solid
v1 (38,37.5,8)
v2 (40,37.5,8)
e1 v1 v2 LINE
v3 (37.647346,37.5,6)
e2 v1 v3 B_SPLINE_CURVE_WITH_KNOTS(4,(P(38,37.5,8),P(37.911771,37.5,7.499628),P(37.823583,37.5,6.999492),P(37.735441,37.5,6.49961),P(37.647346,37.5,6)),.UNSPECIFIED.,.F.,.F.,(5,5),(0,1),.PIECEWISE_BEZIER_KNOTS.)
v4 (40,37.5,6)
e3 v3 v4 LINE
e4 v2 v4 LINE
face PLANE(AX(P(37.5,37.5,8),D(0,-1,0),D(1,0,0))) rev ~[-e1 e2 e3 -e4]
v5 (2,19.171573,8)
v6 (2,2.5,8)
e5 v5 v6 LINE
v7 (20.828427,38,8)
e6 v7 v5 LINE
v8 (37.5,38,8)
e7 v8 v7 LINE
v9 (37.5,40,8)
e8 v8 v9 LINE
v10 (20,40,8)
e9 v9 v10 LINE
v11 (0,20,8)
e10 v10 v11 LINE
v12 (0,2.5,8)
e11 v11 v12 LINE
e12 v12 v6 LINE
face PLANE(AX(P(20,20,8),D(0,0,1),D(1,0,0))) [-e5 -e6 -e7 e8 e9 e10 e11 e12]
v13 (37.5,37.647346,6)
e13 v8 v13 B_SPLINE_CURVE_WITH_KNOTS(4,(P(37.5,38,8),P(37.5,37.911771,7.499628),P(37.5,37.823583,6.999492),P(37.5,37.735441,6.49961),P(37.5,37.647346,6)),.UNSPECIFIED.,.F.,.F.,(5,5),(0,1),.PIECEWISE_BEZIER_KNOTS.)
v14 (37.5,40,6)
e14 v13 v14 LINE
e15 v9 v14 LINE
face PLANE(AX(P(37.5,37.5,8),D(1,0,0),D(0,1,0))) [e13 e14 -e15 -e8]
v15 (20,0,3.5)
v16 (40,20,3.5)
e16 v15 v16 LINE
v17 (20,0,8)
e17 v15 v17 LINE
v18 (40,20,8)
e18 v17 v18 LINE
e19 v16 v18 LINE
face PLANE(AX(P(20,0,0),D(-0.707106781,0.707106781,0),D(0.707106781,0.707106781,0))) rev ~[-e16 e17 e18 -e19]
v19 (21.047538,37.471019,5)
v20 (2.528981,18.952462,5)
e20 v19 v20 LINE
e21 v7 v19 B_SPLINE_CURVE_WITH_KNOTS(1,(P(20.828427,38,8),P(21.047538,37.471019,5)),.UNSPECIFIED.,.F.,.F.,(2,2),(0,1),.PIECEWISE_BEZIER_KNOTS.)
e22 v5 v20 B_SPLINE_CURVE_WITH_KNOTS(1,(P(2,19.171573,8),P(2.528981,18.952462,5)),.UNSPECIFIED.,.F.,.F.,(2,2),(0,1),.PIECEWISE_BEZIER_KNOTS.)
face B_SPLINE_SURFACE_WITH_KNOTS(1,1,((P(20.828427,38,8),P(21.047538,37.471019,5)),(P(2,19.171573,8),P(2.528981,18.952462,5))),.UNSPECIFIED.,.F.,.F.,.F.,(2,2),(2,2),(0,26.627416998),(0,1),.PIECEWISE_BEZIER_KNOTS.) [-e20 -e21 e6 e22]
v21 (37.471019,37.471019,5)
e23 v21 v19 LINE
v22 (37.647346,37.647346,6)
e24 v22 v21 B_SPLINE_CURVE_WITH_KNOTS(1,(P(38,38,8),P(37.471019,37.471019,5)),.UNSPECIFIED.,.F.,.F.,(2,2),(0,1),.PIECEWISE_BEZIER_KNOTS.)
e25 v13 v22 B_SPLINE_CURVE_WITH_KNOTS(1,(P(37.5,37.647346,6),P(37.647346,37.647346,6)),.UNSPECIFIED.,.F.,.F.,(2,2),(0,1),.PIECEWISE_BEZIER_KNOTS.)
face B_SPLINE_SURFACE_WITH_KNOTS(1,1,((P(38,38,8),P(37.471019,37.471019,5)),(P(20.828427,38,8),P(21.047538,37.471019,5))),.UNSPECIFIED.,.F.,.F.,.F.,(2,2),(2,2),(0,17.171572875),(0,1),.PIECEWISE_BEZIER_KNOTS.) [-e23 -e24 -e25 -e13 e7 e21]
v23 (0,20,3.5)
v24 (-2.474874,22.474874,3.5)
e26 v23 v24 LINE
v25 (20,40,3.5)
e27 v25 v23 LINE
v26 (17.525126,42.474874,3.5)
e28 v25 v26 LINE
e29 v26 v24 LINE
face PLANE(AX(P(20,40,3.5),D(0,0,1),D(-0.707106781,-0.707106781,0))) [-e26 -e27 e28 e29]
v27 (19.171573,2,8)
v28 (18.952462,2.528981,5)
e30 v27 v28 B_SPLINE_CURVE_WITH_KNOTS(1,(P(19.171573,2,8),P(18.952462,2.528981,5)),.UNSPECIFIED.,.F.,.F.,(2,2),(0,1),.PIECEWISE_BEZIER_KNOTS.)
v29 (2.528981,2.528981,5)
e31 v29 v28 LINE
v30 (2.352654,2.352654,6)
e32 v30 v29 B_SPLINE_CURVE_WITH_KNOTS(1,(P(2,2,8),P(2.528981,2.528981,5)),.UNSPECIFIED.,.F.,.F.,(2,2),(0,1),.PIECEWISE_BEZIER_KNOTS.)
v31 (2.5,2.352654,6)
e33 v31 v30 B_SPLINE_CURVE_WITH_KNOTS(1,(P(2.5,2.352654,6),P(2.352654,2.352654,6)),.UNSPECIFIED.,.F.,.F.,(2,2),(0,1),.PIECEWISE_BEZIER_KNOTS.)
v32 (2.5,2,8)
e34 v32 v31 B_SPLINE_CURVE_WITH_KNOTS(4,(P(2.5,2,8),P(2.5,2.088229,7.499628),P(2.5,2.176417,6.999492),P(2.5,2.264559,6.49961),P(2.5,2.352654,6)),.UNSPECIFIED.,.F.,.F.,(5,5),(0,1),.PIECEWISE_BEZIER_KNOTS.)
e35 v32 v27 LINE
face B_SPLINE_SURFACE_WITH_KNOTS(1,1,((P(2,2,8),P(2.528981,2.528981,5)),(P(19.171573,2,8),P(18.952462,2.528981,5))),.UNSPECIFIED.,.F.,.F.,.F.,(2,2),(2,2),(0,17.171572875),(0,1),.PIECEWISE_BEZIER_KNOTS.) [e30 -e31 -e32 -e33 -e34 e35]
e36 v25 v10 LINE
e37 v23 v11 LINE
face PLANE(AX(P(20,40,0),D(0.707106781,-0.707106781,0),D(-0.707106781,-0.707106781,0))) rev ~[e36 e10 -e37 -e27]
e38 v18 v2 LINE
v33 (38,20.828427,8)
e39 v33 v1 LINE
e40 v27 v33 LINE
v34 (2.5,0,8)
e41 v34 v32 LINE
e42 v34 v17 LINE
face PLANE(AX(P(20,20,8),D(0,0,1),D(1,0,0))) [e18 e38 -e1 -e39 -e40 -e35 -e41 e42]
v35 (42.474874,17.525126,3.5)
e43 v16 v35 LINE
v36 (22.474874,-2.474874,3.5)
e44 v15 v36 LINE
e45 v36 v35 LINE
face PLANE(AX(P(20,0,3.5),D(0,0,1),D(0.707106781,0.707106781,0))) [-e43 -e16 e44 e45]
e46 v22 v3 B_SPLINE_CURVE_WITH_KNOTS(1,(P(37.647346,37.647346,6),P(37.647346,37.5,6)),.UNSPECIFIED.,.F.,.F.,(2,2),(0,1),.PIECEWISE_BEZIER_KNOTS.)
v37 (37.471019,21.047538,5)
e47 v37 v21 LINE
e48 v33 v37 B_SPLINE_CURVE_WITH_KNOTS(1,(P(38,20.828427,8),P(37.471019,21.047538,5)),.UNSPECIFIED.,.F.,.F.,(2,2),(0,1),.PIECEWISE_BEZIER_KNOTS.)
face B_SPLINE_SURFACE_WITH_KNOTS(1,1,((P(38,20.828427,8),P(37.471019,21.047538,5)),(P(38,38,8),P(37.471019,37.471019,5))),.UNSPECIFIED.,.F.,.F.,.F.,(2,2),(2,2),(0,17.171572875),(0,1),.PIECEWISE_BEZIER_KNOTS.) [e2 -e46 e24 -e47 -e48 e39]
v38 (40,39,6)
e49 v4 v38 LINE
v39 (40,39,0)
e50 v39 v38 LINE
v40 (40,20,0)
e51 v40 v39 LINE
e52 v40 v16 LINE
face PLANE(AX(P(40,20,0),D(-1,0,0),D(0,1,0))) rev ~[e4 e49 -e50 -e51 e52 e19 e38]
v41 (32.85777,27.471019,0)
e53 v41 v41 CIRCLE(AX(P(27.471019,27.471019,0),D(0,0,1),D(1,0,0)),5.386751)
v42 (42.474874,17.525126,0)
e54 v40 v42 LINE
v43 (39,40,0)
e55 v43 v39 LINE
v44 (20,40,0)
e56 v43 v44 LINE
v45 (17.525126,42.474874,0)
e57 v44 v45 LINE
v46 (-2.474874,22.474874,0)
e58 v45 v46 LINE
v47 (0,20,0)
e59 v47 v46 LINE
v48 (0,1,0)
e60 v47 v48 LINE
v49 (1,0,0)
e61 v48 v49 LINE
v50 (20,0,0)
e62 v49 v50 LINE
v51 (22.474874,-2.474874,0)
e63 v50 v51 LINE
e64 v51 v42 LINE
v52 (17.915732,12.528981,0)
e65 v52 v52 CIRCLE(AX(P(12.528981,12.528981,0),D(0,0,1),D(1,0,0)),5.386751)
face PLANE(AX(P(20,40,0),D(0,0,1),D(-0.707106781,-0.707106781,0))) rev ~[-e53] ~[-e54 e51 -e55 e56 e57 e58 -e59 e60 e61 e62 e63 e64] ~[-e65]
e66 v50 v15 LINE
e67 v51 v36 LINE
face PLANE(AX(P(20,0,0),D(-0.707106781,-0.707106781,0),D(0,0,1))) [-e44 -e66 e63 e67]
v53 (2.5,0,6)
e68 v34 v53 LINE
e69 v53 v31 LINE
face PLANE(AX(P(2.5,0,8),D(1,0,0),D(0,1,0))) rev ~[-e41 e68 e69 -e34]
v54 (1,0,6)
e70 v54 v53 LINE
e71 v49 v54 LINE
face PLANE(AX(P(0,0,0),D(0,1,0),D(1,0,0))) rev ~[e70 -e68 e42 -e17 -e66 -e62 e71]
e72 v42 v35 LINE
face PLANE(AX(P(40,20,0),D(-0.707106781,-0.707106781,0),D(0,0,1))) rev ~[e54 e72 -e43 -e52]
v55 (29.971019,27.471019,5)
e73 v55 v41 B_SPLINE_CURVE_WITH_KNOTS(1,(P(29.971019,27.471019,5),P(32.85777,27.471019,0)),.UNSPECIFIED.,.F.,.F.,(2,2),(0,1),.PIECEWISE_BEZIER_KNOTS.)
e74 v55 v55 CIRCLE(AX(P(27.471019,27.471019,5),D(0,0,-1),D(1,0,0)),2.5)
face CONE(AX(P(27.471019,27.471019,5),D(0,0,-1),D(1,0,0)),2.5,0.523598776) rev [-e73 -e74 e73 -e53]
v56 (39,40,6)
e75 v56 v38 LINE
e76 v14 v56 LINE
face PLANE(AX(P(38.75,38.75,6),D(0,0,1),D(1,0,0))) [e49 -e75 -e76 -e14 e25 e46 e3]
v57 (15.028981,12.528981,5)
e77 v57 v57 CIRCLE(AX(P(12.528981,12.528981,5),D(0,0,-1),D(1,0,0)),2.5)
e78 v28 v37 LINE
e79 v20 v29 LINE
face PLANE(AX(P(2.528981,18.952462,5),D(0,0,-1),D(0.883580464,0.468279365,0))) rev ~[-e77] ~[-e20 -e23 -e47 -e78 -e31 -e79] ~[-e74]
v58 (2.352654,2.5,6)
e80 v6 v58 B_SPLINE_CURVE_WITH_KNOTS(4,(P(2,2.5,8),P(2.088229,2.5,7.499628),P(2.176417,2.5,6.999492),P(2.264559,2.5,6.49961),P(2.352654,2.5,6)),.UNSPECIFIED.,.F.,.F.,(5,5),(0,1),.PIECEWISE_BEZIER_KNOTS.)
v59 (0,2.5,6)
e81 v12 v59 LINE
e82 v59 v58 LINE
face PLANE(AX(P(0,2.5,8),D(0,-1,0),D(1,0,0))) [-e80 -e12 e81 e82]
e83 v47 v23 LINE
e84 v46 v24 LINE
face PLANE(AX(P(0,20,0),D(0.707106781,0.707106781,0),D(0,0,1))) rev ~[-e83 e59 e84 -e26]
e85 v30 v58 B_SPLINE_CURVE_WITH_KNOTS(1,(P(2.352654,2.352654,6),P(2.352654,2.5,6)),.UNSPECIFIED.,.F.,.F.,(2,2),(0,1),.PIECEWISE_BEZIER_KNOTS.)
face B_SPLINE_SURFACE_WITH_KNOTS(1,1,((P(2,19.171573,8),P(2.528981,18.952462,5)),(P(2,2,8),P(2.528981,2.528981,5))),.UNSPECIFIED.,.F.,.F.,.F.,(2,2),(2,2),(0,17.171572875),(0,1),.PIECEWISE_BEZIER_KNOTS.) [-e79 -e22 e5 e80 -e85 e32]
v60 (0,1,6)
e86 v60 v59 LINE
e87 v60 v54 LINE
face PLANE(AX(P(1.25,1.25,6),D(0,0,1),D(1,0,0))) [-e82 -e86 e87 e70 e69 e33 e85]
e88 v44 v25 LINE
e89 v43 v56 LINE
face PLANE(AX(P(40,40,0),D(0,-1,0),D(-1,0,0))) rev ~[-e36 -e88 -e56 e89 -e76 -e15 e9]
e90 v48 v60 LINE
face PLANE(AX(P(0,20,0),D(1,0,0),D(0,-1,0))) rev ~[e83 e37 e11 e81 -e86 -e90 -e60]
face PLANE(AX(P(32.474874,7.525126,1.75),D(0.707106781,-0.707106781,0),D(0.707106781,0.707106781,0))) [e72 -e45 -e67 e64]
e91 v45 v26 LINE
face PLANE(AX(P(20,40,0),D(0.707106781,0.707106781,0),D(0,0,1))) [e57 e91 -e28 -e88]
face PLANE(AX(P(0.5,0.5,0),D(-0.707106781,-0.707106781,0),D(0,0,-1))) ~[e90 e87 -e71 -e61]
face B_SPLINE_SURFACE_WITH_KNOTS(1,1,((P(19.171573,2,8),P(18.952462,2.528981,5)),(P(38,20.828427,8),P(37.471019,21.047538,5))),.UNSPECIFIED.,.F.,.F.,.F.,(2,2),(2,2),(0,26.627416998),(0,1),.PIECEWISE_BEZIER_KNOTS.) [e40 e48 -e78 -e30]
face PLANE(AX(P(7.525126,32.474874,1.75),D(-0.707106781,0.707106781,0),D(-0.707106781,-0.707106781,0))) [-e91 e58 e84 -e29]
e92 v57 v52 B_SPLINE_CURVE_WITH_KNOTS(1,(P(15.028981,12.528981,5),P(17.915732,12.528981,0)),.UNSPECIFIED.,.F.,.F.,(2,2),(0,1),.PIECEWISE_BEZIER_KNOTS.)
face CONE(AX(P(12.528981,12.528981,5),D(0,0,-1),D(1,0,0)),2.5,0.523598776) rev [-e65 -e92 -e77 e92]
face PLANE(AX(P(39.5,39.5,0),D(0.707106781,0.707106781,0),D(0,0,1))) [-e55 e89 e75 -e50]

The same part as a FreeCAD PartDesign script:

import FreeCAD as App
import Part
import Sketcher
from FreeCAD import Vector
Q = App.Units.Quantity


def edges_at(feature, points):
    """Names of the edges that pass closest to the given points."""
    edges = feature.Shape.Edges
    near = lambda p: min(range(len(edges)), key=lambda i: edges[i].distToShape(Part.Vertex(*p))[0])
    return sorted({f"Edge{near(p) + 1}" for p in points})


def add_polygon(sketch, points):
    """Adds a closed chain of lines whose ends are joined by coincident constraints."""
    first, n = sketch.GeometryCount, len(points)
    for a, b in zip(points, points[1:] + points[:1]):
        sketch.addGeometry(Part.LineSegment(App.Vector(*a, 0), App.Vector(*b, 0)), False)
    for i in range(n):
        sketch.addConstraint(Sketcher.Constraint("Coincident", first + i, 2, first + (i + 1) % n, 1))

doc = App.newDocument("Part")
body = doc.addObject("PartDesign::Body", "Body")

# Sketch on XY plane
sketch1 = body.newObject("Sketcher::SketchObject", "Sketch")
sketch1.AttachmentSupport = (doc.getObject("XY_Plane"), [""])
sketch1.MapMode = "FlatFace"
add_polygon(sketch1, [(0, 20), (0, 0), (20, 0), (40, 20), (40, 40), (20, 40)])  # lines 0-5
sketch1.addConstraint(Sketcher.Constraint("Vertical", 0))
sketch1.addConstraint(Sketcher.Constraint("Horizontal", 1))
sketch1.addConstraint(Sketcher.Constraint("Vertical", 3))
sketch1.addConstraint(Sketcher.Constraint("Horizontal", 4))
sketch1.addConstraint(Sketcher.Constraint("Coincident", 0, 2, -1, 1))
sketch1.addConstraint(Sketcher.Constraint("Parallel", 2, 5))
sketch1.addConstraint(Sketcher.Constraint("Horizontal", 2, 2, 5, 2))
sketch1.addConstraint(Sketcher.Constraint("Vertical", 1, 2, 4, 2))
sketch1.addConstraint(Sketcher.Constraint("Equal", 1, 4))
sketch1.addConstraint(Sketcher.Constraint("Equal", 4, 0))
sketch1.addConstraint(Sketcher.Constraint("DistanceX", 1, 1, 1, 2, Q("20 mm")))
pad1 = body.newObject("PartDesign::Pad", "Pad")
pad1.Profile = sketch1
pad1.Length = 8

# Sketch on XY plane
sketch2 = body.newObject("Sketcher::SketchObject", "Sketch001")
sketch2.AttachmentSupport = (doc.getObject("XY_Plane"), [""])
sketch2.MapMode = "FlatFace"
sketch2.AttachmentOffset = App.Placement(Vector(0, 0, 8), App.Rotation())
add_polygon(sketch2, [(2, 19.171573), (2, 2), (19.171573, 2), (38, 20.828427), (38, 38), (20.828427, 38)])  # lines 0-5
sketch2.addConstraint(Sketcher.Constraint("Vertical", 0))
sketch2.addConstraint(Sketcher.Constraint("Horizontal", 1))
sketch2.addConstraint(Sketcher.Constraint("Vertical", 3))
sketch2.addConstraint(Sketcher.Constraint("Horizontal", 4))
sketch2.addConstraint(Sketcher.Constraint("Parallel", 2, 5))
sketch2.addConstraint(Sketcher.Constraint("Equal", 1, 4))
sketch2.addConstraint(Sketcher.Constraint("Equal", 4, 0))
sketch2.addConstraint(Sketcher.Constraint("Angle", 2, Q("45 deg")))
sketch2.addConstraint(Sketcher.Constraint("DistanceX", -1, 1, 0, 2, Q("2 mm")))
sketch2.addConstraint(Sketcher.Constraint("DistanceY", -1, 1, 0, 2, Q("2 mm")))
sketch2.addConstraint(Sketcher.Constraint("DistanceX", -1, 1, 2, 2, Q("38 mm")))
sketch2.addConstraint(Sketcher.Constraint("DistanceX", 1, 1, 1, 2, Q("17.171573 mm")))
pocket1 = body.newObject("PartDesign::Pocket", "Pocket")
pocket1.Profile = sketch2
pocket1.Length = 3
pocket1.TaperAngle = -10
doc.recompute()

chamfer = body.newObject("PartDesign::Chamfer", "Chamfer")
chamfer.Base = (pocket1, edges_at(pocket1, [(0, 0, 4), (40, 40, 4)]))
chamfer.Size = 1

# Sketch on XY plane
sketch3 = body.newObject("Sketcher::SketchObject", "Sketch002")
sketch3.AttachmentSupport = (doc.getObject("XY_Plane"), [""])
sketch3.MapMode = "FlatFace"
sketch3.AttachmentOffset = App.Placement(Vector(0, 0, 8), App.Rotation())
add_polygon(sketch3, [(0, 2.5), (0, 0), (2.5, 0), (2.5, 2.5)])  # lines 0-3
add_polygon(sketch3, [(37.5, 40), (37.5, 37.5), (40, 37.5), (40, 40)])  # lines 4-7
sketch3.addConstraint(Sketcher.Constraint("Vertical", 0))
sketch3.addConstraint(Sketcher.Constraint("Horizontal", 1))
sketch3.addConstraint(Sketcher.Constraint("Vertical", 2))
sketch3.addConstraint(Sketcher.Constraint("Horizontal", 3))
sketch3.addConstraint(Sketcher.Constraint("Vertical", 4))
sketch3.addConstraint(Sketcher.Constraint("Horizontal", 5))
sketch3.addConstraint(Sketcher.Constraint("Vertical", 6))
sketch3.addConstraint(Sketcher.Constraint("Horizontal", 7))
sketch3.addConstraint(Sketcher.Constraint("Coincident", 0, 2, -1, 1))
sketch3.addConstraint(Sketcher.Constraint("Equal", 3, 5))
sketch3.addConstraint(Sketcher.Constraint("Equal", 7, 0))
sketch3.addConstraint(Sketcher.Constraint("Equal", 2, 4))
sketch3.addConstraint(Sketcher.Constraint("DistanceX", 1, 1, 1, 2, Q("2.5 mm")))
sketch3.addConstraint(Sketcher.Constraint("DistanceX", -1, 1, 5, 2, Q("40 mm")))
sketch3.addConstraint(Sketcher.Constraint("DistanceY", -1, 1, 6, 2, Q("40 mm")))
pocket2 = body.newObject("PartDesign::Pocket", "Pocket001")
pocket2.Profile = sketch3
pocket2.Length = 2

# Sketch on XY plane
sketch4 = body.newObject("Sketcher::SketchObject", "Sketch003")
sketch4.AttachmentSupport = (doc.getObject("XY_Plane"), [""])
sketch4.MapMode = "FlatFace"
sketch4.AttachmentOffset = App.Placement(Vector(0, 0, 5), App.Rotation())
sketch4.addGeometry(Part.Circle(Vector(12.528981, 12.528981, 0), Vector(0, 0, 1), 2.5), False)
sketch4.addGeometry(Part.Circle(Vector(27.471019, 27.471019, 0), Vector(0, 0, 1), 2.5), False)
sketch4.addConstraint(Sketcher.Constraint("Equal", 0, 1))
sketch4.addConstraint(Sketcher.Constraint("Diameter", 0, Q("5 mm")))
sketch4.addConstraint(Sketcher.Constraint("DistanceX", -1, 1, 0, 3, Q("12.528981 mm")))
sketch4.addConstraint(Sketcher.Constraint("DistanceY", -1, 1, 0, 3, Q("12.528981 mm")))
sketch4.addConstraint(Sketcher.Constraint("DistanceX", -1, 1, 1, 3, Q("27.471019 mm")))
sketch4.addConstraint(Sketcher.Constraint("DistanceY", -1, 1, 1, 3, Q("27.471019 mm")))
pocket3 = body.newObject("PartDesign::Pocket", "Pocket002")
pocket3.Profile = sketch4
pocket3.Type = "ThroughAll"
pocket3.TaperAngle = 30

# Sketch on an angled plane
sketch5 = body.newObject("Sketcher::SketchObject", "Sketch004")
sketch5.Placement = App.Placement(Vector(10, -10, 0), App.Rotation(Vector(0.707106781, 0.707106781, 0), Vector(0, 0, 0.999999999), Vector(0.707106781, -0.707106781, 0), "ZXY"))
add_polygon(sketch5, [(14.142136, 3.5), (14.142136, 0), (42.426407, 0), (42.426407, 3.5)])  # lines 0-3
sketch5.addConstraint(Sketcher.Constraint("Vertical", 0))
sketch5.addConstraint(Sketcher.Constraint("Horizontal", 1))
sketch5.addConstraint(Sketcher.Constraint("Vertical", 2))
sketch5.addConstraint(Sketcher.Constraint("Horizontal", 3))
sketch5.addConstraint(Sketcher.Constraint("PointOnObject", 0, 2, -1))
sketch5.addConstraint(Sketcher.Constraint("DistanceY", 0, 2, 0, 1, Q("3.5 mm")))
sketch5.addConstraint(Sketcher.Constraint("DistanceX", 1, 1, 1, 2, Q("28.284271 mm")))
sketch5.addConstraint(Sketcher.Constraint("DistanceX", -1, 1, 0, 2, Q("14.142136 mm")))
pad2 = body.newObject("PartDesign::Pad", "Pad001")
pad2.Profile = sketch5
pad2.Length = 3.5

# Sketch on an angled plane
sketch6 = body.newObject("Sketcher::SketchObject", "Sketch005")
sketch6.Placement = App.Placement(Vector(-10, 10, 0), App.Rotation(Vector(-0.707106781, -0.707106781, 0), Vector(0, 0, 0.999999999), Vector(-0.707106781, 0.707106781, 0), "ZXY"))
add_polygon(sketch6, [(-42.426407, 3.5), (-42.426407, 0), (-14.142136, 0), (-14.142136, 3.5)])  # lines 0-3
sketch6.addConstraint(Sketcher.Constraint("Vertical", 0))
sketch6.addConstraint(Sketcher.Constraint("Horizontal", 1))
sketch6.addConstraint(Sketcher.Constraint("Vertical", 2))
sketch6.addConstraint(Sketcher.Constraint("Horizontal", 3))
sketch6.addConstraint(Sketcher.Constraint("PointOnObject", 0, 2, -1))
sketch6.addConstraint(Sketcher.Constraint("DistanceY", 0, 2, 0, 1, Q("3.5 mm")))
sketch6.addConstraint(Sketcher.Constraint("DistanceX", 1, 1, 1, 2, Q("28.284271 mm")))
sketch6.addConstraint(Sketcher.Constraint("DistanceX", 0, 2, -1, 1, Q("42.426407 mm")))
pad3 = body.newObject("PartDesign::Pad", "Pad002")
pad3.Profile = sketch6
pad3.Length = 3.5

doc.recompute()
